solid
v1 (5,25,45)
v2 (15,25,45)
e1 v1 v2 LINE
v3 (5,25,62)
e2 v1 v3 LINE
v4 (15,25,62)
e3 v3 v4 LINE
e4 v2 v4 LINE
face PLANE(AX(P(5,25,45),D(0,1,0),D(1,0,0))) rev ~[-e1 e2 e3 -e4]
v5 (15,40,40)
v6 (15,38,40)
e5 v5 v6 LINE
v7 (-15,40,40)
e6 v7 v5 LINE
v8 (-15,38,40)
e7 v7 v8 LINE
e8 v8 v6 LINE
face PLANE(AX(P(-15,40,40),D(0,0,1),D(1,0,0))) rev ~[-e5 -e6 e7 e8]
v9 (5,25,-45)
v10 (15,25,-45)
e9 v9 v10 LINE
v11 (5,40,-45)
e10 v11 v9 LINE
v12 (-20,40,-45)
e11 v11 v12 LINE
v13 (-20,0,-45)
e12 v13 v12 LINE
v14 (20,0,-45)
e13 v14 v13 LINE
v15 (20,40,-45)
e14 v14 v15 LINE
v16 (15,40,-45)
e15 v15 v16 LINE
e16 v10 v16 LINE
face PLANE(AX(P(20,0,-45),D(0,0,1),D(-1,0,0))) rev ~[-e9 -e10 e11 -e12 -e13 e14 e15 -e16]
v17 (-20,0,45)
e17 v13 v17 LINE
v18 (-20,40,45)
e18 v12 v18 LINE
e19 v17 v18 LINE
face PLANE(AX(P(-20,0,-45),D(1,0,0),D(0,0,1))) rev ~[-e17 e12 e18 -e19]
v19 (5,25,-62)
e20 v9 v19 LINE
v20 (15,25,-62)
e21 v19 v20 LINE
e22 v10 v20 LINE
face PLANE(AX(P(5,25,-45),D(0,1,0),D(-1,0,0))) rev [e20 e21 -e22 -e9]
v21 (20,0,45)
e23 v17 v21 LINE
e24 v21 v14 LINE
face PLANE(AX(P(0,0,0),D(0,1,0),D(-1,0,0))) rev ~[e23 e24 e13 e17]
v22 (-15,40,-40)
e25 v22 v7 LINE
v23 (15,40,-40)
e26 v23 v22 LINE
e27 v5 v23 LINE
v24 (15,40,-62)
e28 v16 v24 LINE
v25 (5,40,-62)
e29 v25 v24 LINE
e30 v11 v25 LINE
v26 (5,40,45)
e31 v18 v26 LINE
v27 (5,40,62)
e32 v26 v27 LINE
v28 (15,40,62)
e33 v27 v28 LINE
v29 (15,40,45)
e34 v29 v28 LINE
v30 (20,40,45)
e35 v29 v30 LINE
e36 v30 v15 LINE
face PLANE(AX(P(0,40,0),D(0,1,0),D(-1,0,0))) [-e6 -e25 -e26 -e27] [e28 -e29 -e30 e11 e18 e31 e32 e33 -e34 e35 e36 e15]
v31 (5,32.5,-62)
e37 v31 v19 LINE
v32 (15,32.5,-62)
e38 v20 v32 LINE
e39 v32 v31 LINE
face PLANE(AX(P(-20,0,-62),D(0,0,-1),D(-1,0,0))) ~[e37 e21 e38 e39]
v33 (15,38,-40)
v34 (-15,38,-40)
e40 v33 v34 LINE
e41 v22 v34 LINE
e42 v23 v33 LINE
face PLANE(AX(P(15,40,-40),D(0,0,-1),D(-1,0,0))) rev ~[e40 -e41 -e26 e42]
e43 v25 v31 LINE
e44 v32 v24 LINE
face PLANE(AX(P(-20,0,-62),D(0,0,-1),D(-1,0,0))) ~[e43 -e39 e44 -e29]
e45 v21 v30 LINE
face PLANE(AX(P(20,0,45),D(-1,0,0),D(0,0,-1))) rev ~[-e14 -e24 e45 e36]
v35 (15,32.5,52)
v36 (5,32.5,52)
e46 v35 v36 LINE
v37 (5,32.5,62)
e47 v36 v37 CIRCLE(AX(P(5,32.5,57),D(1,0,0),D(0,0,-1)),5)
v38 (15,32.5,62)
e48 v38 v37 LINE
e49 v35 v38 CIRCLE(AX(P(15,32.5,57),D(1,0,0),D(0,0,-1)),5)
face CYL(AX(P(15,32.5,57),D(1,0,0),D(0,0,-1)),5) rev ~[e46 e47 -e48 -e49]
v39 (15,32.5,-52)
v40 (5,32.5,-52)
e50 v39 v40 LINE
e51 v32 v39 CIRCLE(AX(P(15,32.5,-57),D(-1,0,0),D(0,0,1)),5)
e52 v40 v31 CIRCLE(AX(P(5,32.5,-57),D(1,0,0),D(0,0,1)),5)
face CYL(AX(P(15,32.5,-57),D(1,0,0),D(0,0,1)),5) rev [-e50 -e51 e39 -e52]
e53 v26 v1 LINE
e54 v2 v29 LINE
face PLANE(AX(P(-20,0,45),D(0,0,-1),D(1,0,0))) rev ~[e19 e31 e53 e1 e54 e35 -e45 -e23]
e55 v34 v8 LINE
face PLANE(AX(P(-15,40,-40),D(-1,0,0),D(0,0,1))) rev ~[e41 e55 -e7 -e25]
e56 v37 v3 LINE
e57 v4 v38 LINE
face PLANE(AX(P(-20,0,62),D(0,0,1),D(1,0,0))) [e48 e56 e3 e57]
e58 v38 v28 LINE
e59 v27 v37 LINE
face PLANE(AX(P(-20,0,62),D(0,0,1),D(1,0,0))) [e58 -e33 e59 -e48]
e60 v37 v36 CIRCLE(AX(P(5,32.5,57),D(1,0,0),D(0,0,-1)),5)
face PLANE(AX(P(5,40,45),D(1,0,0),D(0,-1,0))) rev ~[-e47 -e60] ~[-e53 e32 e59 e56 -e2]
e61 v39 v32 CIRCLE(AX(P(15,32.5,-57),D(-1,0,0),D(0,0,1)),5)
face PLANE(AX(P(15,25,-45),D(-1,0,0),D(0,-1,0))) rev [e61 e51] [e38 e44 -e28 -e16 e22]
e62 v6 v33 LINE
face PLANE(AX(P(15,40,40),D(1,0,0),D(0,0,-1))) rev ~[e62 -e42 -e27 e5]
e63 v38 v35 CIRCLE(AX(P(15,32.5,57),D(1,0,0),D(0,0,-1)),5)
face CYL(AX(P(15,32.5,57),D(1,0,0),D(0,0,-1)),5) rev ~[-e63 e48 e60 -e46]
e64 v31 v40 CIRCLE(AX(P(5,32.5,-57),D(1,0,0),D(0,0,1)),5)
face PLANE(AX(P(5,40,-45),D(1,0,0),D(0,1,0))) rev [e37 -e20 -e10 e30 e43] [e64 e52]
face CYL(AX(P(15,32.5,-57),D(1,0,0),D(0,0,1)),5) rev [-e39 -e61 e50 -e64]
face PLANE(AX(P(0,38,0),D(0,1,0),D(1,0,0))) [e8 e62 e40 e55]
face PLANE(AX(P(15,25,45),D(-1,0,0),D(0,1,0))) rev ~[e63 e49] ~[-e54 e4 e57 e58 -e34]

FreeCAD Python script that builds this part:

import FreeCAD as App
import Part
import Sketcher
from FreeCAD import Vector
Q = App.Units.Quantity

doc = App.newDocument("Part")
body = doc.addObject("PartDesign::Body", "Body")

sketch1 = body.newObject("Sketcher::SketchObject", "Sketch")
sketch1.AttachmentSupport = (doc.getObject("XZ_Plane"), [""])
sketch1.MapMode = "FlatFace"
sketch1.addGeometry([
    Part.LineSegment(Vector(-20, -45, 0), Vector(-20, 45, 0)),
    Part.LineSegment(Vector(-20, 45, 0), Vector(20, 45, 0)),
    Part.LineSegment(Vector(20, 45, 0), Vector(20, -45, 0)),
    Part.LineSegment(Vector(20, -45, 0), Vector(-20, -45, 0)),
], False)
sketch1.addConstraint([
    Sketcher.Constraint("Coincident", 0, 2, 1, 1),
    Sketcher.Constraint("Coincident", 1, 2, 2, 1),
    Sketcher.Constraint("Coincident", 2, 2, 3, 1),
    Sketcher.Constraint("Coincident", 3, 2, 0, 1),
    Sketcher.Constraint("Vertical", 0),
    Sketcher.Constraint("Horizontal", 1),
    Sketcher.Constraint("Vertical", 2),
    Sketcher.Constraint("Horizontal", 3),
    Sketcher.Constraint("Symmetric", 0, 2, 2, 2, -1, 1),
    Sketcher.Constraint("DistanceX", 1, 1, 1, 2, Q("40 mm")),
    Sketcher.Constraint("DistanceY", 0, 1, 0, 2, Q("90 mm")),
])
pad1 = body.newObject("PartDesign::Pad", "Pad")
pad1.Profile = sketch1
pad1.Length = 40
pad1.Reversed = True

sketch2 = body.newObject("Sketcher::SketchObject", "Sketch001")
sketch2.AttachmentSupport = (doc.getObject("XY_Plane"), [""])
sketch2.MapMode = "FlatFace"
sketch2.AttachmentOffset = App.Placement(Vector(0, 0, 45), App.Rotation())
sketch2.addGeometry([
    Part.LineSegment(Vector(15, 40, 0), Vector(5, 40, 0)),
    Part.LineSegment(Vector(5, 40, 0), Vector(5, 25, 0)),
    Part.LineSegment(Vector(5, 25, 0), Vector(15, 25, 0)),
    Part.LineSegment(Vector(15, 25, 0), Vector(15, 40, 0)),
], False)
sketch2.addConstraint([
    Sketcher.Constraint("Coincident", 0, 2, 1, 1),
    Sketcher.Constraint("Coincident", 1, 2, 2, 1),
    Sketcher.Constraint("Coincident", 2, 2, 3, 1),
    Sketcher.Constraint("Coincident", 3, 2, 0, 1),
    Sketcher.Constraint("Horizontal", 0),
    Sketcher.Constraint("Vertical", 1),
    Sketcher.Constraint("Horizontal", 2),
    Sketcher.Constraint("Vertical", 3),
    Sketcher.Constraint("DistanceX", 0, 2, 0, 1, Q("10 mm")),
    Sketcher.Constraint("DistanceY", 1, 2, 1, 1, Q("15 mm")),
    Sketcher.Constraint("DistanceX", -1, 1, 0, 2, Q("5 mm")),
    Sketcher.Constraint("DistanceY", -1, 1, 0, 2, Q("40 mm")),
])
pad2 = body.newObject("PartDesign::Pad", "Pad001")
pad2.Profile = sketch2
pad2.Length = 17

sketch3 = body.newObject("Sketcher::SketchObject", "Sketch002")
sketch3.AttachmentSupport = (doc.getObject("YZ_Plane"), [""])
sketch3.MapMode = "FlatFace"
sketch3.AttachmentOffset = App.Placement(Vector(0, 0, 15), App.Rotation())
sketch3.addGeometry(Part.Circle(Vector(32, 57, 0), Vector(0, 0, 1), 5), False)
sketch3.addConstraint([
    Sketcher.Constraint("Diameter", 0, Q("10 mm")),
    Sketcher.Constraint("DistanceY", -1, 1, 0, 3, Q("57 mm")),
    Sketcher.Constraint("DistanceX", -1, 1, 0, 3, Q("32.5 mm")),
])
pocket1 = body.newObject("PartDesign::Pocket", "Pocket")
pocket1.Profile = sketch3
pocket1.Length = 17
doc.recompute()

mirrored = body.newObject("PartDesign::Mirrored", "Mirrored")
mirrored.Originals = [pad2, pocket1]
mirrored.MirrorPlane = (doc.getObject("XY_Plane"), [""])
body.Tip = mirrored

sketch4 = body.newObject("Sketcher::SketchObject", "Sketch003")
sketch4.AttachmentSupport = (doc.getObject("XZ_Plane"), [""])
sketch4.MapMode = "FlatFace"
sketch4.AttachmentOffset = App.Placement(Vector(0, 0, -40), App.Rotation())
sketch4.addGeometry([
    Part.LineSegment(Vector(-15, -40, 0), Vector(-15, 40, 0)),
    Part.LineSegment(Vector(-15, 40, 0), Vector(15, 40, 0)),
    Part.LineSegment(Vector(15, 40, 0), Vector(15, -40, 0)),
    Part.LineSegment(Vector(15, -40, 0), Vector(-15, -40, 0)),
], False)
sketch4.addConstraint([
    Sketcher.Constraint("Coincident", 0, 2, 1, 1),
    Sketcher.Constraint("Coincident", 1, 2, 2, 1),
    Sketcher.Constraint("Coincident", 2, 2, 3, 1),
    Sketcher.Constraint("Coincident", 3, 2, 0, 1),
    Sketcher.Constraint("Vertical", 0),
    Sketcher.Constraint("Horizontal", 1),
    Sketcher.Constraint("Vertical", 2),
    Sketcher.Constraint("Horizontal", 3),
    Sketcher.Constraint("Symmetric", 0, 2, 2, 2, -1, 1),
    Sketcher.Constraint("DistanceX", 1, 1, 1, 2, Q("30 mm")),
    Sketcher.Constraint("DistanceY", 0, 1, 0, 2, Q("80 mm")),
])
pocket2 = body.newObject("PartDesign::Pocket", "Pocket001")
pocket2.Profile = sketch4
pocket2.Length = 2
pocket2.Reversed = True

doc.recompute()
